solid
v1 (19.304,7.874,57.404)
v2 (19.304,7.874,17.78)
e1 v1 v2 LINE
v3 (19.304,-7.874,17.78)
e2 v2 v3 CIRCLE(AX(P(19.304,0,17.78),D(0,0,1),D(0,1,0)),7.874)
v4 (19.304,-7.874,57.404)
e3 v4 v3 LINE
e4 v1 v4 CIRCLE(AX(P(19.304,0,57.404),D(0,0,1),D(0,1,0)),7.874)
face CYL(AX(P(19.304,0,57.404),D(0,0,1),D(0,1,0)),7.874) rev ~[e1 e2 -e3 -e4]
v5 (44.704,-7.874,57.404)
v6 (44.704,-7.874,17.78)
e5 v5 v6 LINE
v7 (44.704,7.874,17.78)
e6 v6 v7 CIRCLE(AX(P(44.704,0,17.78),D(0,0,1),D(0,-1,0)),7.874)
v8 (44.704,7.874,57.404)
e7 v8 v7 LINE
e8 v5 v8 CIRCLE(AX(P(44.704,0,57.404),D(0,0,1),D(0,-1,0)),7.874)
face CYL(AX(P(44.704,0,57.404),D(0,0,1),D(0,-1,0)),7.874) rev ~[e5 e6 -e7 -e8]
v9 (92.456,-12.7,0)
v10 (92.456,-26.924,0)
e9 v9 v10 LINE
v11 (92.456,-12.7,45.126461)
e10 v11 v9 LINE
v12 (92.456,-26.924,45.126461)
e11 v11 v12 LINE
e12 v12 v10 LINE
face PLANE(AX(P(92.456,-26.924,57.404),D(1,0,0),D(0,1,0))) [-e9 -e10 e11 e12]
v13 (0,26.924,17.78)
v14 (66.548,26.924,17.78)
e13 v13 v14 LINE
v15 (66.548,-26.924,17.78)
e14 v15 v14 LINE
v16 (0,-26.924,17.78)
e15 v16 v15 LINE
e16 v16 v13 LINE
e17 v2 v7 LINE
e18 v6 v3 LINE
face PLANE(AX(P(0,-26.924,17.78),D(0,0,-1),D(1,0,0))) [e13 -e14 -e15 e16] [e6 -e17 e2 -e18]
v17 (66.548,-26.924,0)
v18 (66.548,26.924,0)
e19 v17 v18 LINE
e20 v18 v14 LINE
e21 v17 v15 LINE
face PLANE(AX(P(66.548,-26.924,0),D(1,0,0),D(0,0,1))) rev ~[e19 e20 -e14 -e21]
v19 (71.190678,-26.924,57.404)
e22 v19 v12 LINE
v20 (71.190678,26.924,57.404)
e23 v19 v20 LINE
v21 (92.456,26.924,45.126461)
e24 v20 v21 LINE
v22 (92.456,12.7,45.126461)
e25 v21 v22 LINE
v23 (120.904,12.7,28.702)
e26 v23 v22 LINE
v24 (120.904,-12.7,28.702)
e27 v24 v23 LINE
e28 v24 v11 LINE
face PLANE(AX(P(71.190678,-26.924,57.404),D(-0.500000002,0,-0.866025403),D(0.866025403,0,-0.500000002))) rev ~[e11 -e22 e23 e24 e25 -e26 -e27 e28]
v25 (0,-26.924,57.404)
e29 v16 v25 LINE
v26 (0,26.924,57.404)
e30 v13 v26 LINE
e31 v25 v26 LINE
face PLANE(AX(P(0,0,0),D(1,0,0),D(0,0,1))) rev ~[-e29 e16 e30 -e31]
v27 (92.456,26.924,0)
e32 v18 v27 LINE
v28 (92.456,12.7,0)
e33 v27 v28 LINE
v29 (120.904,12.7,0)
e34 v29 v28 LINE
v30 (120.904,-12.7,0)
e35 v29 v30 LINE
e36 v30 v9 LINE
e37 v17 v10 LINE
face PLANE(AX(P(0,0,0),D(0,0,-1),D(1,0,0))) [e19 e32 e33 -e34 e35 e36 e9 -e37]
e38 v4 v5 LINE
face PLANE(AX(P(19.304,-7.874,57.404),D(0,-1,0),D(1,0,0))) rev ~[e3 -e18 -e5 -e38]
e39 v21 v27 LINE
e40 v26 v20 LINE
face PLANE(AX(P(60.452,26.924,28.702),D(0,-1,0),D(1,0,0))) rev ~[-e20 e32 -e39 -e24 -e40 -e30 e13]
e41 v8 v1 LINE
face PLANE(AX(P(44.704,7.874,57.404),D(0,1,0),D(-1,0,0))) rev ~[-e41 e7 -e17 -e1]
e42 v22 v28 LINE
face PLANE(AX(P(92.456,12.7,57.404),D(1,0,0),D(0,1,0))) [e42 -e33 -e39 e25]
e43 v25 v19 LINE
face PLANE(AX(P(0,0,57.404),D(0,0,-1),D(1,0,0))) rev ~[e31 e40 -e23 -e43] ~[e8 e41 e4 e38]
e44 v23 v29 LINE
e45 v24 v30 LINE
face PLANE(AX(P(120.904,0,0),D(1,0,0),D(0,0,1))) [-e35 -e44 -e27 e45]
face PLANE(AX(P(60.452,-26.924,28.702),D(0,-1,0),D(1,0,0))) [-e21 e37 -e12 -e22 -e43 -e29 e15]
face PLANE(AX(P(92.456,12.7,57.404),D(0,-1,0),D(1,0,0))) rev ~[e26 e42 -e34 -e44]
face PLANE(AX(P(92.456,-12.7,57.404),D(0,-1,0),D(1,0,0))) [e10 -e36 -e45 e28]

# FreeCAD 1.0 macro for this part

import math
import FreeCAD as App
import Part
import Sketcher
Q = App.Units.Quantity


def add_polygon(sketch, points):
    """Adds a closed chain of lines whose ends are joined by coincident constraints."""
    first, n = sketch.GeometryCount, len(points)
    for a, b in zip(points, points[1:] + points[:1]):
        sketch.addGeometry(Part.LineSegment(App.Vector(*a, 0), App.Vector(*b, 0)), False)
    for i in range(n):
        sketch.addConstraint(Sketcher.Constraint("Coincident", first + i, 2, first + (i + 1) % n, 1))

doc = App.newDocument("Part")
body = doc.addObject("PartDesign::Body", "Body")

# Sketch on XZ plane
sketch1 = doc.addObject("Sketcher::SketchObject", "Sketch")
body.addObject(sketch1)
sketch1.AttachmentSupport = (doc.XZ_Plane, [""])
sketch1.MapMode = "FlatFace"
add_polygon(sketch1, [(0, 57.404), (0, 0), (120.904, 0), (120.904, 57.404)])  # lines 0-3
sketch1.addConstraint([
    Sketcher.Constraint("Vertical", 0),
    Sketcher.Constraint("Horizontal", 1),
    Sketcher.Constraint("Vertical", 2),
    Sketcher.Constraint("Horizontal", 3),
    Sketcher.Constraint("Coincident", 0, 2, -1, 1),
    Sketcher.Constraint("DistanceX", 1, 1, 1, 2, Q("4.76 in")),
    Sketcher.Constraint("DistanceY", 0, 2, 0, 1, Q("2.26 in")),
])
pad1 = doc.addObject("PartDesign::Pad", "Pad")
body.addObject(pad1)
pad1.Profile = sketch1
pad1.Length = Q("2.12 in")
pad1.Midplane = True

# Sketch on XZ plane
sketch2 = doc.addObject("Sketcher::SketchObject", "Sketch001")
body.addObject(sketch2)
sketch2.AttachmentSupport = (doc.XZ_Plane, [""])
sketch2.MapMode = "FlatFace"
sketch2.AttachmentOffset = App.Placement(App.Vector(0, 0, 1.06 * 25.4), App.Rotation())
add_polygon(sketch2, [(0, 17.78), (0, 0), (66.548, 0), (66.548, 17.78)])  # lines 0-3
sketch2.addConstraint([
    Sketcher.Constraint("Vertical", 0),
    Sketcher.Constraint("Horizontal", 1),
    Sketcher.Constraint("Vertical", 2),
    Sketcher.Constraint("Horizontal", 3),
    Sketcher.Constraint("Coincident", 0, 2, -1, 1),
    Sketcher.Constraint("DistanceY", 0, 2, 0, 1, Q("0.7 in")),
    Sketcher.Constraint("DistanceX", 1, 1, 1, 2, Q("2.62 in")),
])
pocket1 = doc.addObject("PartDesign::Pocket", "Pocket")
body.addObject(pocket1)
pocket1.Profile = sketch2
pocket1.Type = "ThroughAll"

# Sketch on XZ plane
sketch3 = doc.addObject("Sketcher::SketchObject", "Sketch002")
body.addObject(sketch3)
sketch3.AttachmentSupport = (doc.XZ_Plane, [""])
sketch3.MapMode = "FlatFace"
sketch3.AttachmentOffset = App.Placement(App.Vector(0, 0, 1.06 * 25.4), App.Rotation())
add_polygon(sketch3, [(120.904, 28.702), (120.904, 57.404), (71.190678, 57.404)])  # lines 0-2
sketch3.addConstraint([
    Sketcher.Constraint("Vertical", 0),
    Sketcher.Constraint("Horizontal", 1),
    Sketcher.Constraint("Angle", 2, Q("-30 deg")),
    Sketcher.Constraint("DistanceY", 0, 1, 0, 2, Q("1.13 in")),
    Sketcher.Constraint("DistanceX", -1, 1, 0, 2, Q("4.76 in")),
    Sketcher.Constraint("DistanceY", -1, 1, 0, 2, Q("2.26 in")),
])
pocket2 = doc.addObject("PartDesign::Pocket", "Pocket001")
body.addObject(pocket2)
pocket2.Profile = sketch3
pocket2.Type = "ThroughAll"

# Sketch on XY plane
sketch4 = doc.addObject("Sketcher::SketchObject", "Sketch003")
body.addObject(sketch4)
sketch4.AttachmentSupport = (doc.XY_Plane, [""])
sketch4.MapMode = "FlatFace"
sketch4.AttachmentOffset = App.Placement(App.Vector(0, 0, 2.26 * 25.4), App.Rotation())
add_polygon(sketch4, [(92.456, -12.7), (92.456, -26.924), (120.904, -26.924), (120.904, -12.7)])  # lines 0-3
add_polygon(sketch4, [(92.456, 26.924), (92.456, 12.7), (120.904, 12.7), (120.904, 26.924)])  # lines 4-7
sketch4.addConstraint([
    Sketcher.Constraint("Vertical", 0),
    Sketcher.Constraint("Horizontal", 1),
    Sketcher.Constraint("Vertical", 2),
    Sketcher.Constraint("Horizontal", 3),
    Sketcher.Constraint("Vertical", 4),
    Sketcher.Constraint("Horizontal", 5),
    Sketcher.Constraint("Vertical", 6),
    Sketcher.Constraint("Horizontal", 7),
    Sketcher.Constraint("Symmetric", 3, 2, 4, 2, -1),
    Sketcher.Constraint("Symmetric", 1, 2, 6, 2, -1),
    Sketcher.Constraint("DistanceY", 3, 2, 4, 2, Q("1 in")),
    Sketcher.Constraint("DistanceX", 1, 1, 1, 2, Q("1.12 in")),
    Sketcher.Constraint("DistanceY", 0, 2, 0, 1, Q("0.56 in")),
    Sketcher.Constraint("DistanceX", -1, 1, 0, 2, Q("3.64 in")),
])
pocket3 = doc.addObject("PartDesign::Pocket", "Pocket002")
body.addObject(pocket3)
pocket3.Profile = sketch4
pocket3.Type = "ThroughAll"

# Sketch on XY plane
sketch5 = doc.addObject("Sketcher::SketchObject", "Sketch004")
body.addObject(sketch5)
sketch5.AttachmentSupport = (doc.XY_Plane, [""])
sketch5.MapMode = "FlatFace"
sketch5.AttachmentOffset = App.Placement(App.Vector(0, 0, 2.26 * 25.4), App.Rotation())
sketch5.addGeometry([
    Part.LineSegment(App.Vector(44.704, 7.874, 0), App.Vector(19.304, 7.874, 0)),
    Part.ArcOfCircle(Part.Circle(App.Vector(19.304, 0, 0), App.Vector(0, 0, 1), 7.874), math.radians(90), math.radians(270)),
    Part.LineSegment(App.Vector(19.304, -7.874, 0), App.Vector(44.704, -7.874, 0)),
    Part.ArcOfCircle(Part.Circle(App.Vector(44.704, 0, 0), App.Vector(0, 0, 1), 7.874), math.radians(-90), math.radians(90)),
], False)
sketch5.addConstraint([
    Sketcher.Constraint("Tangent", 0, 2, 1, 1),
    Sketcher.Constraint("Tangent", 1, 2, 2, 1),
    Sketcher.Constraint("Tangent", 2, 2, 3, 1),
    Sketcher.Constraint("Tangent", 3, 2, 0, 1),
    Sketcher.Constraint("Horizontal", 0),
    Sketcher.Constraint("Horizontal", 2),
    Sketcher.Constraint("PointOnObject", 1, 3, -1),
    Sketcher.Constraint("DistanceX", 0, 2, 0, 1, Q("1 in")),
    Sketcher.Constraint("Radius", 1, Q("0.31 in")),
    Sketcher.Constraint("DistanceX", -1, 1, 1, 3, Q("0.76 in")),
])
pocket4 = doc.addObject("PartDesign::Pocket", "Pocket003")
body.addObject(pocket4)
pocket4.Profile = sketch5
pocket4.Type = "ThroughAll"

doc.recompute()
